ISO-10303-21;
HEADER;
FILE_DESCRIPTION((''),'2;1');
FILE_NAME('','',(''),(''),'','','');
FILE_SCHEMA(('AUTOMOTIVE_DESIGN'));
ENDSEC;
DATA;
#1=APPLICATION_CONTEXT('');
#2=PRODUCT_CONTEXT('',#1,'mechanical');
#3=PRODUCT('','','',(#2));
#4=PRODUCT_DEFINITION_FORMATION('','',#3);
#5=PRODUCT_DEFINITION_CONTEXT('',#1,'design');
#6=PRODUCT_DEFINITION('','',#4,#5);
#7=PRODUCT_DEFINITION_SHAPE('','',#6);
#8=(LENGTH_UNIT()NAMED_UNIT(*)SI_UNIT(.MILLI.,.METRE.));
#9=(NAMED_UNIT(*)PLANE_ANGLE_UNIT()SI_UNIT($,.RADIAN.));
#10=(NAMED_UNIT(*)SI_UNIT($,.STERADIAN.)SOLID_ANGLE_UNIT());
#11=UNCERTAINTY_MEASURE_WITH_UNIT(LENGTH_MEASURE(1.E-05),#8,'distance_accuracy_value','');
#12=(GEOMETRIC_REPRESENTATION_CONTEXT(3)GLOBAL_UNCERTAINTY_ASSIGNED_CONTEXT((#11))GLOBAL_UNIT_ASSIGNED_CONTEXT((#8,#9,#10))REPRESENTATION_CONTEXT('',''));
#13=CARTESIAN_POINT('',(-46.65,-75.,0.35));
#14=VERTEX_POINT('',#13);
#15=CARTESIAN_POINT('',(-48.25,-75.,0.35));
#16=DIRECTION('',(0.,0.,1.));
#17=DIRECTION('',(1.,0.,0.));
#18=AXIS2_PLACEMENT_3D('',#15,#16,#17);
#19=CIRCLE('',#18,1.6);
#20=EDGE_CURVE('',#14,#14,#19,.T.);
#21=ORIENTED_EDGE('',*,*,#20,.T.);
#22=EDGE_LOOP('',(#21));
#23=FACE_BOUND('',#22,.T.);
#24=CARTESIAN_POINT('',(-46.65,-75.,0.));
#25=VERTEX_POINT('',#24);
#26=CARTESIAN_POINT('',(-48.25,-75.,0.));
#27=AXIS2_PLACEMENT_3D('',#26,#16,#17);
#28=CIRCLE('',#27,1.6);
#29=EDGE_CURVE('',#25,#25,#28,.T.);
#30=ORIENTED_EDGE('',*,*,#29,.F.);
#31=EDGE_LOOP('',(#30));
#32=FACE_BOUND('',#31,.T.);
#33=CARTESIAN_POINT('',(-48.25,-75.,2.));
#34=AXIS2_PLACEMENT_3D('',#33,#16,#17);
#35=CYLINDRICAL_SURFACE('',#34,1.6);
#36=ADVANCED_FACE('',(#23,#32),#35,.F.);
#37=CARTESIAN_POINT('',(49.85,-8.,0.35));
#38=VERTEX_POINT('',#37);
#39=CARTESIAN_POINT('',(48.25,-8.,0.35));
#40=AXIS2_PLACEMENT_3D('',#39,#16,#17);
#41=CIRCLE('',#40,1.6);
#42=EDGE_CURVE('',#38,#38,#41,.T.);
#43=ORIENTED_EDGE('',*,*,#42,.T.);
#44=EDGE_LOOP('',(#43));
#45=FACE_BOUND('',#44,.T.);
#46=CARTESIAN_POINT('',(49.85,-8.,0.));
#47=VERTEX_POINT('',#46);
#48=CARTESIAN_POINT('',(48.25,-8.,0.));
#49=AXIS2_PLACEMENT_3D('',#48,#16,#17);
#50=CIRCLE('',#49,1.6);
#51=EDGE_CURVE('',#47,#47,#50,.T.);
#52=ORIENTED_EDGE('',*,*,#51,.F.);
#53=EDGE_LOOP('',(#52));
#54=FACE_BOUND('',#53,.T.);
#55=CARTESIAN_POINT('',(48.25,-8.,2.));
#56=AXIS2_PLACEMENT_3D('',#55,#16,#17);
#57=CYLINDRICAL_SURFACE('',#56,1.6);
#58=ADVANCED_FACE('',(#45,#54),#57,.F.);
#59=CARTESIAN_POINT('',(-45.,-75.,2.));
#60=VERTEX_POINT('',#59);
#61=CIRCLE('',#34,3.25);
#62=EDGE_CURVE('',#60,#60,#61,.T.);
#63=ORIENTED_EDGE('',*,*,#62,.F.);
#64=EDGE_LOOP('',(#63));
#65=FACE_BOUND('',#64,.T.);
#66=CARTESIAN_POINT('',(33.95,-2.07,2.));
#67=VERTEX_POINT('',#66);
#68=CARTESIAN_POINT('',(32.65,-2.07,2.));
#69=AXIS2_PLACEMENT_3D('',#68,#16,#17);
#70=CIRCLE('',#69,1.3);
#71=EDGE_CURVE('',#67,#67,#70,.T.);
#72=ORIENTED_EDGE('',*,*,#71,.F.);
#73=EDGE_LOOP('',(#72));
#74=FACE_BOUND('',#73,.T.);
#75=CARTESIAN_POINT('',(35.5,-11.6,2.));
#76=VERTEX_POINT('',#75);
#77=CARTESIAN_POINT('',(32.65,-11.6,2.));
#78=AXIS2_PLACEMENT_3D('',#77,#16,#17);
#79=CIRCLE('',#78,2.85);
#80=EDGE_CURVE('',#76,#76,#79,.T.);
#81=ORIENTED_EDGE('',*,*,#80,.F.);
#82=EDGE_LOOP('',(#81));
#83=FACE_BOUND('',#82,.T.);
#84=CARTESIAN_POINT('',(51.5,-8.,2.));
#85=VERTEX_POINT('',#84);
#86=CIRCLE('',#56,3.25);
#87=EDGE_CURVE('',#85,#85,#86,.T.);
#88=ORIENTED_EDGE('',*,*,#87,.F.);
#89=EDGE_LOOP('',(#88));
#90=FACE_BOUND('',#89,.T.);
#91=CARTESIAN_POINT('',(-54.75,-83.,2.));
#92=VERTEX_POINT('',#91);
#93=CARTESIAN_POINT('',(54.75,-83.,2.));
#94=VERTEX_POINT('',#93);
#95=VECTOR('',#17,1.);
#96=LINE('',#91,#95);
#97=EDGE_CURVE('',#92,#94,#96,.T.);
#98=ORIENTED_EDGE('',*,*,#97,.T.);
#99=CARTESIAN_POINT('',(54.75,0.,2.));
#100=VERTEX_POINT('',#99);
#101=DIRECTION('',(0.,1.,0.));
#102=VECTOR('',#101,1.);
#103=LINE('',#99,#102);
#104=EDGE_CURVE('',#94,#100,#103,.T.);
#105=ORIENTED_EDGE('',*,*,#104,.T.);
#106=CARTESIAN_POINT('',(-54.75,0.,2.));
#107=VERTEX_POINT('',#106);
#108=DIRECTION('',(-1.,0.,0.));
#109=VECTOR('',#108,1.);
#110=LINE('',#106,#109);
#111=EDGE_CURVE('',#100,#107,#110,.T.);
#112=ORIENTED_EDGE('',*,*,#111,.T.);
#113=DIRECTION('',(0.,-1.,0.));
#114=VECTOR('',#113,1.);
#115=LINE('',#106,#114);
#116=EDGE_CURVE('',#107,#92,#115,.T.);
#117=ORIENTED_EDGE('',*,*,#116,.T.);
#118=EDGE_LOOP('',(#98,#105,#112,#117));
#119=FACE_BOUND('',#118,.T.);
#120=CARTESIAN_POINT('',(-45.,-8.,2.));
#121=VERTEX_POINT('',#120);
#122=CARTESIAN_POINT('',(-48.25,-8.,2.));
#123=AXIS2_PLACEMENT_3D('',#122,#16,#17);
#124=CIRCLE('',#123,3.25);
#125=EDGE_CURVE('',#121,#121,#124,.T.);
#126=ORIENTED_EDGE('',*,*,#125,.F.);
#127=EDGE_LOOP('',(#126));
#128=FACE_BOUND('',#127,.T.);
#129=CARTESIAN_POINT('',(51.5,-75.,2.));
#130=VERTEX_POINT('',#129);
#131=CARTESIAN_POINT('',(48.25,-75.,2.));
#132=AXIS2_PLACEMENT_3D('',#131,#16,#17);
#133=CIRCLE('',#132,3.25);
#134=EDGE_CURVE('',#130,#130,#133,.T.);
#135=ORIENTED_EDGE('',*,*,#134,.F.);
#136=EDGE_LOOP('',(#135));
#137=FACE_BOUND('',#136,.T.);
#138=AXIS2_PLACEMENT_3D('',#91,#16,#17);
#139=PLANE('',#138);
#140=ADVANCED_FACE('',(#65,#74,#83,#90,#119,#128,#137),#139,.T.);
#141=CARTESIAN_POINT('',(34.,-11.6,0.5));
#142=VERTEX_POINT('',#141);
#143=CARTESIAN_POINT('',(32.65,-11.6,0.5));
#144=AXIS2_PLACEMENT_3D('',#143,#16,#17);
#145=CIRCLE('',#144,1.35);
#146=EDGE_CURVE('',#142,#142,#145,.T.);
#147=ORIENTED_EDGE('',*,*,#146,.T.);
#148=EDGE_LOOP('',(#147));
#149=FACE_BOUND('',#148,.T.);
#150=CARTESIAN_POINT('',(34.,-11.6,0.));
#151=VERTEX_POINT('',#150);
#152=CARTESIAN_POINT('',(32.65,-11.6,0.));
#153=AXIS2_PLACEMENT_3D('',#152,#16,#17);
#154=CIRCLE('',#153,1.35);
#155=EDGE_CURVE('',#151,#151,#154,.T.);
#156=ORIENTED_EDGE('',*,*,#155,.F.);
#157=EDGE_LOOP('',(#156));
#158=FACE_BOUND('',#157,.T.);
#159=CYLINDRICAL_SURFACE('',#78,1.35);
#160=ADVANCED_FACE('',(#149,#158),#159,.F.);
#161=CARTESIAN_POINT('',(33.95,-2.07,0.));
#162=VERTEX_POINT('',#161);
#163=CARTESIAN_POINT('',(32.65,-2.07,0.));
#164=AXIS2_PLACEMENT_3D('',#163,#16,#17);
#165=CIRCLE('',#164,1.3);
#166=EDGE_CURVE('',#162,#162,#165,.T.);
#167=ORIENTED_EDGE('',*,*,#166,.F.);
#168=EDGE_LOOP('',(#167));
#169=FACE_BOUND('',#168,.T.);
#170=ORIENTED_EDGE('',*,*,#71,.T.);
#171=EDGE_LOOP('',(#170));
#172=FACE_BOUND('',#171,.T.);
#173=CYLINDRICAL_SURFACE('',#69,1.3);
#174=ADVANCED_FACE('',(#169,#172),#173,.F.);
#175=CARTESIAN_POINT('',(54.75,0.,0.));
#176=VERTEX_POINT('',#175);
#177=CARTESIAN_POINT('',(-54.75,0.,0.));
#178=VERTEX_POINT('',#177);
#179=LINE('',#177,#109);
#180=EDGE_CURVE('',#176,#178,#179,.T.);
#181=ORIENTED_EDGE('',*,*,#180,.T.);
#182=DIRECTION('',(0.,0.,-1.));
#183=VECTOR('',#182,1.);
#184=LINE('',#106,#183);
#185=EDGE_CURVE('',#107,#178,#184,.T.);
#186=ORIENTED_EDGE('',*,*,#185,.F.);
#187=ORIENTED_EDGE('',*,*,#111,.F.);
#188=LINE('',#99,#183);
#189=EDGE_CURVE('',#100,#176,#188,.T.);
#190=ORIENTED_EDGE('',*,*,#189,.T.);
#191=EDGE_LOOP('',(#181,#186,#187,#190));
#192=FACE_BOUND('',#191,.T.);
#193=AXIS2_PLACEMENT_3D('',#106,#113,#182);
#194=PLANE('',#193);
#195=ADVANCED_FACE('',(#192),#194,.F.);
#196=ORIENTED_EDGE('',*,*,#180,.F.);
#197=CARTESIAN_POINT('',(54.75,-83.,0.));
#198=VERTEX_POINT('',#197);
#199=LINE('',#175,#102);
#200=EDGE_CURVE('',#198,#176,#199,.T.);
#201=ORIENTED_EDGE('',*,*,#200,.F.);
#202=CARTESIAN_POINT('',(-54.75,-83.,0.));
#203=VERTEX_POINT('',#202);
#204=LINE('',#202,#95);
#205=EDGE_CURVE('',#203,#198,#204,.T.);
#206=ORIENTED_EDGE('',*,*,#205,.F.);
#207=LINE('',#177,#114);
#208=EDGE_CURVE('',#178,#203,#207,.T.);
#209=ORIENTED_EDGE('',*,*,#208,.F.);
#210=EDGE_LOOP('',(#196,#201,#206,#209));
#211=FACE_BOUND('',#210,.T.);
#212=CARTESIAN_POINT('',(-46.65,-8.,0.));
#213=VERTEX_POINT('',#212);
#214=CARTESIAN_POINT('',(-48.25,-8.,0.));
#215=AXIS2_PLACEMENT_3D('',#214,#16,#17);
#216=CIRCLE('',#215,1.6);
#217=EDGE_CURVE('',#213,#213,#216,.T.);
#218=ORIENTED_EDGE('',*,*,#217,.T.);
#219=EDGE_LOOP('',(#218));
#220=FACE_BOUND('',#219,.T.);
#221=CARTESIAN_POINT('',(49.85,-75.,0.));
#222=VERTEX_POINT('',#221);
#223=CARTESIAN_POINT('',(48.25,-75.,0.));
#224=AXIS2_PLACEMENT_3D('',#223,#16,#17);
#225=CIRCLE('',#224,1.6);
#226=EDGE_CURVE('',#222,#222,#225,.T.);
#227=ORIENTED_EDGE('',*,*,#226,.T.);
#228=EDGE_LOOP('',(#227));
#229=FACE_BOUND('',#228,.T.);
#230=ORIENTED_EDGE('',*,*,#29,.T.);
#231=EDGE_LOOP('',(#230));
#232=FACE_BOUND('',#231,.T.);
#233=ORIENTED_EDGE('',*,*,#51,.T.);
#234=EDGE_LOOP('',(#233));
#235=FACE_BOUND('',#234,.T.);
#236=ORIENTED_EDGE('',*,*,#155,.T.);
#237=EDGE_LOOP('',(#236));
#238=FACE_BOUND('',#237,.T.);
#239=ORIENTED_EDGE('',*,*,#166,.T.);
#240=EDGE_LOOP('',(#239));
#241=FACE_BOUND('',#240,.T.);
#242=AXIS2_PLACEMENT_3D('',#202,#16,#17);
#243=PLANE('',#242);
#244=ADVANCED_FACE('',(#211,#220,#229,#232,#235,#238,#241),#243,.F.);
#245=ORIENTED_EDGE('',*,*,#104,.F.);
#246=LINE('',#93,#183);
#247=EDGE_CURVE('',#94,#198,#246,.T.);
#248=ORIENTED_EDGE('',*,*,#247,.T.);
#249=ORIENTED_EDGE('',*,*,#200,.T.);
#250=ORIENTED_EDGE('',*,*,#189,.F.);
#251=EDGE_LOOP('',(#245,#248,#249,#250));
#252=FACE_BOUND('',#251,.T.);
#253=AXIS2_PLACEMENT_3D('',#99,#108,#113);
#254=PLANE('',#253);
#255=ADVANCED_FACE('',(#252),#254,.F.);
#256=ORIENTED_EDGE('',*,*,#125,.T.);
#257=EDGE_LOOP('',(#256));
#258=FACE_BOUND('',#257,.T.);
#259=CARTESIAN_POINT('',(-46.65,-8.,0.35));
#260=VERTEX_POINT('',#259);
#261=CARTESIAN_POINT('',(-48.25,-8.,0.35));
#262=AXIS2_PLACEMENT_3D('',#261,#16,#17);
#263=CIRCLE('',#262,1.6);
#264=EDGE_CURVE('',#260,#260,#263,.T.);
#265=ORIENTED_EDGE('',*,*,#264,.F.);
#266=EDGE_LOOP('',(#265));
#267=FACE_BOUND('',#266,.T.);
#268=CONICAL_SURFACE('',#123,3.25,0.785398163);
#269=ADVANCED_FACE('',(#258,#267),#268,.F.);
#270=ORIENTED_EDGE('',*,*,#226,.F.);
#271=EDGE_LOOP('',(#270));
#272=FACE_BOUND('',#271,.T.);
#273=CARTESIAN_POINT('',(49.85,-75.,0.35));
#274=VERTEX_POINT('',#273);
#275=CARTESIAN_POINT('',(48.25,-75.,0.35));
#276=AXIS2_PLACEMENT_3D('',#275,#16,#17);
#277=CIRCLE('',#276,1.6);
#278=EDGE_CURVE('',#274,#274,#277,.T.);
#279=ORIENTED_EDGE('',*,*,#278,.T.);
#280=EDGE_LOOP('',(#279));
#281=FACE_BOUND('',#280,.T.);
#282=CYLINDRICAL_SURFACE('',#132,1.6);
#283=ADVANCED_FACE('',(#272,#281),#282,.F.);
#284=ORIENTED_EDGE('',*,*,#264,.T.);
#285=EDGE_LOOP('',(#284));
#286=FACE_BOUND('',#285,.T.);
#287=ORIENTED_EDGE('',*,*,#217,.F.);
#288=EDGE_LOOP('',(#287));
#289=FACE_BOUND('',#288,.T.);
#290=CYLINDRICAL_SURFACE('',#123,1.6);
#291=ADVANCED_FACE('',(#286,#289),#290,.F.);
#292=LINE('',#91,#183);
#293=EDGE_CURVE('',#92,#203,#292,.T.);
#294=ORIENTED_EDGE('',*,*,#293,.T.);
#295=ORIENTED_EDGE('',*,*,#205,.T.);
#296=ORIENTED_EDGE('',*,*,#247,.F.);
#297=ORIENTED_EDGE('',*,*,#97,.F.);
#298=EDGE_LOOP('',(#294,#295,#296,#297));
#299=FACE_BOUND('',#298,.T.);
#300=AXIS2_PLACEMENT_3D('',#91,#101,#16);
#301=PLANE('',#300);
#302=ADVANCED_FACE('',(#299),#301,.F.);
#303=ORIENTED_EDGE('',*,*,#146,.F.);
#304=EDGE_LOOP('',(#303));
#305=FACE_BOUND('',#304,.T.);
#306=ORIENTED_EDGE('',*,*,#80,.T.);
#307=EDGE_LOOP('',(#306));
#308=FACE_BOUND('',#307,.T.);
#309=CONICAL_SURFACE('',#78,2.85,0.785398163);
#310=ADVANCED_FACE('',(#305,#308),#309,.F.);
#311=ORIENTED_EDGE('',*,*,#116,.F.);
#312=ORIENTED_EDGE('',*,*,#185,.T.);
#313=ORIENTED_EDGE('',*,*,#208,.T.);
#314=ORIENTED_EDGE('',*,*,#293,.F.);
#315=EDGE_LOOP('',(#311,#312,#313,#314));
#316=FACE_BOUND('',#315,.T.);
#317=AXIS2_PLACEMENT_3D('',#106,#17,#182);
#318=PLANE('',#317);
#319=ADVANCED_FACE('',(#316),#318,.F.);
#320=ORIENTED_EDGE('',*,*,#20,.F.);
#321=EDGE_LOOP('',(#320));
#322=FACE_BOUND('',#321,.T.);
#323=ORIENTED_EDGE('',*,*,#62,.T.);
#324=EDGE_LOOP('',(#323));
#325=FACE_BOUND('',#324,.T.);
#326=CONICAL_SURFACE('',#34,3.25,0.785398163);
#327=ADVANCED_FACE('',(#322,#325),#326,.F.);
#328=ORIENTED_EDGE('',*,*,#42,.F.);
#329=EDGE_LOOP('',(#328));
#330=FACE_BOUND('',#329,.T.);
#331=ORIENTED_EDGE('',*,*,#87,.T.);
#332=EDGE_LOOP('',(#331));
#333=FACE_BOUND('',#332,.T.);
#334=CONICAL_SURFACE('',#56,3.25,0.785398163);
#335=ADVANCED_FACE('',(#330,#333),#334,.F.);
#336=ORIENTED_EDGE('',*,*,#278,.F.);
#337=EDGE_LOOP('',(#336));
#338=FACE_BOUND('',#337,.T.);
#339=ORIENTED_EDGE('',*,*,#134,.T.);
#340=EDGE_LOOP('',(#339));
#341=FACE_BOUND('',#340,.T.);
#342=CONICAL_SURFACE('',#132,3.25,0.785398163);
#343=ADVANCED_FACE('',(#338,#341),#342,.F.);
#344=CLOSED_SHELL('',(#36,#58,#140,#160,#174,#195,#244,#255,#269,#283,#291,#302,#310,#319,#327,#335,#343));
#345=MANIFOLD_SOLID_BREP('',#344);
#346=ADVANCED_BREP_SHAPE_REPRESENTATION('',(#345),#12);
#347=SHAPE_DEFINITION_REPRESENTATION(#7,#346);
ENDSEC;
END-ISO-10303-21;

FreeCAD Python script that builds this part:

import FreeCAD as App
import Part
import Sketcher

V = App.Vector
Q = App.Units.Quantity

doc = App.newDocument("Part")
params = doc.addObject("Spreadsheet::Sheet", "Params")
for row, (alias, value) in enumerate([
    ("sketch1_height", "83 mm"),
    ("sketch1_width", "109.5 mm"),
    ("pad1_length", "2 mm"),
    ("sketch2_height", "2 mm"),
    ("sketch2_width", "1.6 mm"),
    ("sketch2_width2", "3.25 mm"),
    ("groove_angle", "360 deg"),
    ("linearpattern_pitch", "67 mm"),
    ("linearpattern2_pitch", "117.478721 mm"),
    ("linearpattern3_pitch", "96.5 mm"),
    ("sketch3_height", "2 mm"),
    ("sketch3_height2", "0.5 mm"),
    ("sketch3_width", "2.85 mm"),
    ("groove2_angle", "360 deg"),
    ("sketch4_diameter", "2.6 mm"),
    ("hole_diameter", "2.6 mm"),
], start=1):
    params.set(f"A{row}", alias)
    params.set(f"B{row}", "=" + value)
    params.setAlias(f"B{row}", alias)

body = doc.addObject("PartDesign::Body", "Body")

# Sketch on XY plane
sketch1 = body.newObject("Sketcher::SketchObject", "Sketch")
sketch1.AttachmentSupport = (doc.getObject("XY_Plane"), [""])
sketch1.MapMode = "FlatFace"
sketch1.addGeometry([
    Part.LineSegment(V(-55, 0, 0), V(-55, -83, 0)),
    Part.LineSegment(V(-55, -83, 0), V(55, -83, 0)),
    Part.LineSegment(V(55, -83, 0), V(55, 0, 0)),
    Part.LineSegment(V(55, 0, 0), V(-55, 0, 0)),
], False)
sketch1.addConstraint([
    Sketcher.Constraint("Coincident", 0, 2, 1, 1),
    Sketcher.Constraint("Coincident", 1, 2, 2, 1),
    Sketcher.Constraint("Coincident", 2, 2, 3, 1),
    Sketcher.Constraint("Coincident", 3, 2, 0, 1),
    Sketcher.Constraint("Vertical", 0),
    Sketcher.Constraint("Horizontal", 1),
    Sketcher.Constraint("Vertical", 2),
    Sketcher.Constraint("Horizontal", 3),
    Sketcher.Constraint("Symmetric", 2, 2, 3, 2, -1, 1),
    Sketcher.Constraint("DistanceY", 0, 2, 0, 1, Q("83 mm")),
    Sketcher.Constraint("DistanceX", 1, 1, 1, 2, Q("109.5 mm")),
])
sketch1.setExpression("Constraints[9]", "Params.sketch1_height")
sketch1.setExpression("Constraints[10]", "Params.sketch1_width")
pad1 = body.newObject("PartDesign::Pad", "Pad")
pad1.Profile = sketch1
pad1.setExpression("Length", "Params.pad1_length")

# Sketch on YZ plane
sketch2 = body.newObject("Sketcher::SketchObject", "Sketch001")
sketch2.AttachmentSupport = (doc.getObject("YZ_Plane"), [""])
sketch2.MapMode = "FlatFace"
sketch2.AttachmentOffset = App.Placement(V(0, 0, -48.25), App.Rotation())
sketch2.addGeometry([
    Part.LineSegment(V(-8, 0, 0), V(-8, 2, 0)),  # 0
    Part.LineSegment(V(-8, 2, 0), V(-11.25, 2, 0)),  # 1
    Part.LineSegment(V(-11.25, 2, 0), V(-9.6, 0.35, 0)),  # 2
    Part.LineSegment(V(-9.6, 0.35, 0), V(-9.6, 0, 0)),  # 3
    Part.LineSegment(V(-9.6, 0, 0), V(-8, 0, 0)),  # 4
], False)
sketch2.addGeometry(Part.LineSegment(V(-8, 2, 0), V(-8, 0, 0)), True)  # axis
sketch2.addConstraint([
    Sketcher.Constraint("Coincident", 0, 2, 1, 1),
    Sketcher.Constraint("Coincident", 1, 2, 2, 1),
    Sketcher.Constraint("Coincident", 2, 2, 3, 1),
    Sketcher.Constraint("Coincident", 3, 2, 4, 1),
    Sketcher.Constraint("Coincident", 4, 2, 0, 1),
    Sketcher.Constraint("Vertical", 0),
    Sketcher.Constraint("Horizontal", 1),
    Sketcher.Constraint("Vertical", 3),
    Sketcher.Constraint("Horizontal", 4),
    Sketcher.Constraint("Vertical", 5),
    Sketcher.Constraint("Coincident", 5, 1, 0, 2),
    Sketcher.Constraint("PointOnObject", 3, 2, -1),
    Sketcher.Constraint("PointOnObject", 5, 2, -1),
    Sketcher.Constraint("DistanceY", 0, 1, 0, 2, Q("2 mm")),
    Sketcher.Constraint("Angle", 2, Q("-45 deg")),
    Sketcher.Constraint("DistanceX", 4, 1, 4, 2, Q("1.6 mm")),
    Sketcher.Constraint("DistanceX", 0, 2, -1, 1, Q("8 mm")),
    Sketcher.Constraint("DistanceX", 1, 2, 1, 1, Q("3.25 mm")),
])
sketch2.setExpression("Constraints[13]", "Params.sketch2_height")
sketch2.setExpression("Constraints[15]", "Params.sketch2_width")
sketch2.setExpression("Constraints[17]", "Params.sketch2_width2")
groove = body.newObject("PartDesign::Groove", "Groove")
groove.Profile = sketch2
groove.ReferenceAxis = (sketch2, ["Axis0"])
groove.setExpression("Angle", "Params.groove_angle")
doc.recompute()

linearpattern = body.newObject("PartDesign::LinearPattern", "LinearPattern")
linearpattern.Originals = [groove]
linearpattern.Direction = (doc.getObject("Y_Axis"), [""])
linearpattern.Mode = "offset"
linearpattern.setExpression("Offset", "Params.linearpattern_pitch")
linearpattern.Occurrences = 2
linearpattern.Reversed = True
body.Tip = linearpattern
doc.recompute()

datumline = body.newObject("PartDesign::Line", "DatumLine")
datumline.Placement = App.Placement(V(0, 0, 0), App.Rotation(V(0, 0, 1), V(0.821425351, -0.570316047, 0)))
linearpattern2 = body.newObject("PartDesign::LinearPattern", "LinearPattern001")
linearpattern2.Originals = [groove]
linearpattern2.Direction = (datumline, [""])
linearpattern2.Mode = "offset"
linearpattern2.setExpression("Offset", "Params.linearpattern2_pitch")
linearpattern2.Occurrences = 2
body.Tip = linearpattern2
doc.recompute()

linearpattern3 = body.newObject("PartDesign::LinearPattern", "LinearPattern002")
linearpattern3.Originals = [groove]
linearpattern3.Direction = (doc.getObject("X_Axis"), [""])
linearpattern3.Mode = "offset"
linearpattern3.setExpression("Offset", "Params.linearpattern3_pitch")
linearpattern3.Occurrences = 2
body.Tip = linearpattern3

# Sketch on YZ plane
sketch3 = body.newObject("Sketcher::SketchObject", "Sketch002")
sketch3.AttachmentSupport = (doc.getObject("YZ_Plane"), [""])
sketch3.MapMode = "FlatFace"
sketch3.AttachmentOffset = App.Placement(V(0, 0, 32.65), App.Rotation())
sketch3.addGeometry([
    Part.LineSegment(V(-11.6, 0, 0), V(-11.6, 2, 0)),  # 0
    Part.LineSegment(V(-11.6, 2, 0), V(-14.4, 2, 0)),  # 1
    Part.LineSegment(V(-14.4, 2, 0), V(-12.9, 0.5, 0)),  # 2
    Part.LineSegment(V(-12.9, 0.5, 0), V(-12.9, 0, 0)),  # 3
    Part.LineSegment(V(-12.9, 0, 0), V(-11.6, 0, 0)),  # 4
], False)
sketch3.addGeometry(Part.LineSegment(V(-11.6, 2, 0), V(-11.6, 0, 0)), True)  # axis
sketch3.addConstraint([
    Sketcher.Constraint("Coincident", 0, 2, 1, 1),
    Sketcher.Constraint("Coincident", 1, 2, 2, 1),
    Sketcher.Constraint("Coincident", 2, 2, 3, 1),
    Sketcher.Constraint("Coincident", 3, 2, 4, 1),
    Sketcher.Constraint("Coincident", 4, 2, 0, 1),
    Sketcher.Constraint("Vertical", 0),
    Sketcher.Constraint("Horizontal", 1),
    Sketcher.Constraint("Vertical", 3),
    Sketcher.Constraint("Horizontal", 4),
    Sketcher.Constraint("Vertical", 5),
    Sketcher.Constraint("Coincident", 5, 1, 0, 2),
    Sketcher.Constraint("PointOnObject", 3, 2, -1),
    Sketcher.Constraint("PointOnObject", 5, 2, -1),
    Sketcher.Constraint("DistanceY", 0, 1, 0, 2, Q("2 mm")),
    Sketcher.Constraint("Angle", 2, Q("-45 deg")),
    Sketcher.Constraint("DistanceY", 3, 2, 3, 1, Q("0.5 mm")),
    Sketcher.Constraint("DistanceX", 1, 2, 1, 1, Q("2.85 mm")),
    Sketcher.Constraint("DistanceX", 0, 2, -1, 1, Q("11.6 mm")),
])
sketch3.setExpression("Constraints[13]", "Params.sketch3_height")
sketch3.setExpression("Constraints[15]", "Params.sketch3_height2")
sketch3.setExpression("Constraints[16]", "Params.sketch3_width")
groove2 = body.newObject("PartDesign::Groove", "Groove001")
groove2.Profile = sketch3
groove2.ReferenceAxis = (sketch3, ["Axis0"])
groove2.setExpression("Angle", "Params.groove2_angle")

# Sketch on XY plane
sketch4 = body.newObject("Sketcher::SketchObject", "Sketch003")
sketch4.AttachmentSupport = (doc.getObject("XY_Plane"), [""])
sketch4.MapMode = "FlatFace"
sketch4.AttachmentOffset = App.Placement(V(0, 0, 2), App.Rotation())
sketch4.addGeometry(Part.Circle(V(32.6, -2.1, 0), V(0, 0, 1), 1.3), False)
sketch4.addConstraint([
    Sketcher.Constraint("Diameter", 0, Q("2.6 mm")),
    Sketcher.Constraint("DistanceX", -1, 1, 0, 3, Q("32.65 mm")),
    Sketcher.Constraint("DistanceY", 0, 3, -1, 1, Q("2.07 mm")),
])
sketch4.setExpression("Constraints[0]", "Params.sketch4_diameter")
doc.recompute()
hole = body.newObject("PartDesign::Hole", "Hole")
hole.Profile = sketch4
hole.ThreadType = "None"
hole.setExpression("Diameter", "Params.hole_diameter")
hole.DepthType = "ThroughAll"

doc.recompute()
